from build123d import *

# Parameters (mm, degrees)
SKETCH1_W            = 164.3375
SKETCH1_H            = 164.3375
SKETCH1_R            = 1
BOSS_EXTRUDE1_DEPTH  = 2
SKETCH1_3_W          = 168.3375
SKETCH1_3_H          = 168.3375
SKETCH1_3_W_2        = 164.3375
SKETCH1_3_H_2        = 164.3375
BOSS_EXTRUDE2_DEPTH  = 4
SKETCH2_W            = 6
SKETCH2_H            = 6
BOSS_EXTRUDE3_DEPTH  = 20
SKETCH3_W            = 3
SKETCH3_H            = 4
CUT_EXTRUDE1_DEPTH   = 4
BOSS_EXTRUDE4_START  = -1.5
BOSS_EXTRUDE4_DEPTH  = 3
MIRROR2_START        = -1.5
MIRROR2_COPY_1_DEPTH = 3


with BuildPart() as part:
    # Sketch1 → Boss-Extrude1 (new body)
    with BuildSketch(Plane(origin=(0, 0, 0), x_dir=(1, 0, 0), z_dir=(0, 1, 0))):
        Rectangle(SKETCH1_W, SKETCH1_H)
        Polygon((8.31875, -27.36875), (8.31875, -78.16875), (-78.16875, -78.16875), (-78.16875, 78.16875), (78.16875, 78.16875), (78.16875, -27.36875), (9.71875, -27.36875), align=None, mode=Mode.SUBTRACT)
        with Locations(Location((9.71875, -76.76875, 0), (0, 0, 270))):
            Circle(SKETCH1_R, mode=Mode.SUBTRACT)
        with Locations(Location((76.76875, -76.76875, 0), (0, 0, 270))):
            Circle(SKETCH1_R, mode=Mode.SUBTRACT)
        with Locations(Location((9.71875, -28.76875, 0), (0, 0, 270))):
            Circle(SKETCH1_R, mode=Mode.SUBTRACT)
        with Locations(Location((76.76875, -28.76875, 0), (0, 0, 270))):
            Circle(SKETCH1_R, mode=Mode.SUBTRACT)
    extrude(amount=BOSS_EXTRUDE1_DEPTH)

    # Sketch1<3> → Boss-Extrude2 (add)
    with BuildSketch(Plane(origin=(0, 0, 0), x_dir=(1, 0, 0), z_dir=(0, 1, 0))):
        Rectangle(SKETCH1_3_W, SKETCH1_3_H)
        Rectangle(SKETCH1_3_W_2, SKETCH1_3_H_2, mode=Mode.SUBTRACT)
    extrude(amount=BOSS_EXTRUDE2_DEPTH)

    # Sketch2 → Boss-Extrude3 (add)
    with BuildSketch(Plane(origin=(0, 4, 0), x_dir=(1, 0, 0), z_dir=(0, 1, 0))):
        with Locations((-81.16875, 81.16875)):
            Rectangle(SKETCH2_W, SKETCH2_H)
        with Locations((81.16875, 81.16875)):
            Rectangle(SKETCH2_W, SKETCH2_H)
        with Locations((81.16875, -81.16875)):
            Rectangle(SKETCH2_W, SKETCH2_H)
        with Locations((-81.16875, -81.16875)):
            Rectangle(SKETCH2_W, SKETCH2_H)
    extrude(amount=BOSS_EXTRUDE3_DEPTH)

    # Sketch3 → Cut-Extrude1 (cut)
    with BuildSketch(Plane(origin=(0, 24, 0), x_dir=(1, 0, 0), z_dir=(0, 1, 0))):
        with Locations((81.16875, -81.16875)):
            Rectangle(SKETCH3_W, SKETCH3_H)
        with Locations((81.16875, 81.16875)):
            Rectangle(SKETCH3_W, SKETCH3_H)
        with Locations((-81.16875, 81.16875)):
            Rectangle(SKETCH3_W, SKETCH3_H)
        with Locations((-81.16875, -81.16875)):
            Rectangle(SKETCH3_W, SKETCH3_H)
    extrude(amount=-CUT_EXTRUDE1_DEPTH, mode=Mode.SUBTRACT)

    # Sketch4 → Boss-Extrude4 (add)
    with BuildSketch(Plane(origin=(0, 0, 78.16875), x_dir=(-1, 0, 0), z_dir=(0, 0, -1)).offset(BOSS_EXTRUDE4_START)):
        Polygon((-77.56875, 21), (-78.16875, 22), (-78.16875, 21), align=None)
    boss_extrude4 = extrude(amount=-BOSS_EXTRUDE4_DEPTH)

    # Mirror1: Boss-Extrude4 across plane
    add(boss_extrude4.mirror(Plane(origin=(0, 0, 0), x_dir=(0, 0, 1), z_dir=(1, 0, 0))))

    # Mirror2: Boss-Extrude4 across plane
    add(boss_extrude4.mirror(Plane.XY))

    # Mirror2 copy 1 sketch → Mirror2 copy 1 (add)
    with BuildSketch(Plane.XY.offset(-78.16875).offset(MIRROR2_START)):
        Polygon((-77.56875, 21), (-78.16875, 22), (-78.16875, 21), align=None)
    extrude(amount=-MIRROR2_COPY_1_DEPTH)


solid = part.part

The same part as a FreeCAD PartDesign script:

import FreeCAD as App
import Part
import Sketcher
from FreeCAD import Vector
Q = App.Units.Quantity

doc = App.newDocument("Part")
body = doc.addObject("PartDesign::Body", "Body")

# Sketch on XZ plane
sketch1 = body.newObject("Sketcher::SketchObject", "Sketch")
sketch1.AttachmentSupport = (doc.getObject("XZ_Plane"), [""])
sketch1.MapMode = "FlatFace"
sketch1.addGeometry([
    Part.LineSegment(Vector(-82.2, -82.2, 0), Vector(-82.2, 82.2, 0)),  # 0
    Part.LineSegment(Vector(-82.2, 82.2, 0), Vector(82.2, 82.2, 0)),  # 1
    Part.LineSegment(Vector(82.2, 82.2, 0), Vector(82.2, -82.2, 0)),  # 2
    Part.LineSegment(Vector(82.2, -82.2, 0), Vector(-82.2, -82.2, 0)),  # 3
    Part.Circle(Vector(9.7, 76.8, 0), Vector(0, 0, 1), 1),  # 4
    Part.Circle(Vector(76.8, 76.8, 0), Vector(0, 0, 1), 1),  # 5
    Part.Circle(Vector(9.7, 28.8, 0), Vector(0, 0, 1), 1),  # 6
    Part.Circle(Vector(76.8, 28.8, 0), Vector(0, 0, 1), 1),  # 7
    Part.LineSegment(Vector(78.2, 27.4, 0), Vector(8.3, 27.4, 0)),  # 8
    Part.LineSegment(Vector(8.3, 27.4, 0), Vector(8.3, 78.2, 0)),  # 9
    Part.LineSegment(Vector(8.3, 78.2, 0), Vector(-78.2, 78.2, 0)),  # 10
    Part.LineSegment(Vector(-78.2, 78.2, 0), Vector(-78.2, -78.2, 0)),  # 11
    Part.LineSegment(Vector(-78.2, -78.2, 0), Vector(78.2, -78.2, 0)),  # 12
    Part.LineSegment(Vector(78.2, -78.2, 0), Vector(78.2, 27.4, 0)),  # 13
], False)
sketch1.addConstraint([
    Sketcher.Constraint("Coincident", 0, 2, 1, 1),
    Sketcher.Constraint("Coincident", 1, 2, 2, 1),
    Sketcher.Constraint("Coincident", 2, 2, 3, 1),
    Sketcher.Constraint("Coincident", 3, 2, 0, 1),
    Sketcher.Constraint("Coincident", 8, 2, 9, 1),
    Sketcher.Constraint("Coincident", 9, 2, 10, 1),
    Sketcher.Constraint("Coincident", 10, 2, 11, 1),
    Sketcher.Constraint("Coincident", 11, 2, 12, 1),
    Sketcher.Constraint("Coincident", 12, 2, 13, 1),
    Sketcher.Constraint("Coincident", 13, 2, 8, 1),
    Sketcher.Constraint("Vertical", 0),
    Sketcher.Constraint("Horizontal", 1),
    Sketcher.Constraint("Vertical", 2),
    Sketcher.Constraint("Horizontal", 3),
    Sketcher.Constraint("Horizontal", 8),
    Sketcher.Constraint("Vertical", 9),
    Sketcher.Constraint("Horizontal", 10),
    Sketcher.Constraint("Vertical", 11),
    Sketcher.Constraint("Horizontal", 12),
    Sketcher.Constraint("Vertical", 13),
    Sketcher.Constraint("Equal", 4, 5),
    Sketcher.Constraint("Equal", 5, 6),
    Sketcher.Constraint("Equal", 6, 7),
    Sketcher.Constraint("Symmetric", 0, 2, 2, 2, -1, 1),
    Sketcher.Constraint("Symmetric", 10, 2, 12, 2, -1, 1),
    Sketcher.Constraint("Horizontal", 4, 3, 5, 3),
    Sketcher.Constraint("Horizontal", 6, 3, 7, 3),
    Sketcher.Constraint("Vertical", 4, 3, 6, 3),
    Sketcher.Constraint("Vertical", 5, 3, 7, 3),
    Sketcher.Constraint("Equal", 3, 0),
    Sketcher.Constraint("Equal", 12, 11),
    Sketcher.Constraint("Diameter", 4, Q("2 mm")),
    Sketcher.Constraint("DistanceY", 9, 1, 9, 2, Q("50.8 mm")),
    Sketcher.Constraint("DistanceY", 6, 3, 4, 3, Q("48 mm")),
    Sketcher.Constraint("DistanceY", 9, 2, 1, 2, Q("4 mm")),
    Sketcher.Constraint("DistanceX", 8, 2, 8, 1, Q("69.85 mm")),
    Sketcher.Constraint("DistanceY", 4, 3, 0, 2, Q("5.4 mm")),
    Sketcher.Constraint("DistanceX", 5, 3, 1, 2, Q("5.4 mm")),
    Sketcher.Constraint("DistanceX", 8, 2, 6, 3, Q("1.4 mm")),
    Sketcher.Constraint("DistanceX", 1, 1, 1, 2, Q("164.3375 mm")),
])
pad1 = body.newObject("PartDesign::Pad", "Pad")
pad1.Profile = sketch1
pad1.Length = 2
pad1.Reversed = True

# Sketch on XZ plane
sketch2 = body.newObject("Sketcher::SketchObject", "Sketch001")
sketch2.AttachmentSupport = (doc.getObject("XZ_Plane"), [""])
sketch2.MapMode = "FlatFace"
sketch2.addGeometry([
    Part.LineSegment(Vector(-84, -84, 0), Vector(-84, 84, 0)),  # 0
    Part.LineSegment(Vector(-84, 84, 0), Vector(84, 84, 0)),  # 1
    Part.LineSegment(Vector(84, 84, 0), Vector(84, -84, 0)),  # 2
    Part.LineSegment(Vector(84, -84, 0), Vector(-84, -84, 0)),  # 3
    Part.LineSegment(Vector(82, 82, 0), Vector(-82, 82, 0)),  # 4
    Part.LineSegment(Vector(-82, 82, 0), Vector(-82, -82, 0)),  # 5
    Part.LineSegment(Vector(-82, -82, 0), Vector(82, -82, 0)),  # 6
    Part.LineSegment(Vector(82, -82, 0), Vector(82, 82, 0)),  # 7
], False)
sketch2.addConstraint([
    Sketcher.Constraint("Coincident", 0, 2, 1, 1),
    Sketcher.Constraint("Coincident", 1, 2, 2, 1),
    Sketcher.Constraint("Coincident", 2, 2, 3, 1),
    Sketcher.Constraint("Coincident", 3, 2, 0, 1),
    Sketcher.Constraint("Coincident", 4, 2, 5, 1),
    Sketcher.Constraint("Coincident", 5, 2, 6, 1),
    Sketcher.Constraint("Coincident", 6, 2, 7, 1),
    Sketcher.Constraint("Coincident", 7, 2, 4, 1),
    Sketcher.Constraint("Vertical", 0),
    Sketcher.Constraint("Horizontal", 1),
    Sketcher.Constraint("Vertical", 2),
    Sketcher.Constraint("Horizontal", 3),
    Sketcher.Constraint("Horizontal", 4),
    Sketcher.Constraint("Vertical", 5),
    Sketcher.Constraint("Horizontal", 6),
    Sketcher.Constraint("Vertical", 7),
    Sketcher.Constraint("Symmetric", 0, 2, 2, 2, -1, 1),
    Sketcher.Constraint("Symmetric", 4, 2, 6, 2, -1, 1),
    Sketcher.Constraint("Equal", 3, 0),
    Sketcher.Constraint("Equal", 6, 5),
    Sketcher.Constraint("DistanceX", 0, 2, 4, 2, Q("2 mm")),
    Sketcher.Constraint("DistanceX", 1, 1, 1, 2, Q("168.3375 mm")),
])
pad2 = body.newObject("PartDesign::Pad", "Pad001")
pad2.Profile = sketch2
pad2.Length = 4
pad2.Reversed = True

# Sketch on XZ plane
sketch3 = body.newObject("Sketcher::SketchObject", "Sketch002")
sketch3.AttachmentSupport = (doc.getObject("XZ_Plane"), [""])
sketch3.MapMode = "FlatFace"
sketch3.AttachmentOffset = App.Placement(Vector(0, 0, -4), App.Rotation())
sketch3.addGeometry([
    Part.LineSegment(Vector(-84, -84, 0), Vector(-84, -78, 0)),  # 0
    Part.LineSegment(Vector(-84, -78, 0), Vector(-78, -78, 0)),  # 1
    Part.LineSegment(Vector(-78, -78, 0), Vector(-78, -84, 0)),  # 2
    Part.LineSegment(Vector(-78, -84, 0), Vector(-84, -84, 0)),  # 3
    Part.LineSegment(Vector(78, -84, 0), Vector(78, -78, 0)),  # 4
    Part.LineSegment(Vector(78, -78, 0), Vector(84, -78, 0)),  # 5
    Part.LineSegment(Vector(84, -78, 0), Vector(84, -84, 0)),  # 6
    Part.LineSegment(Vector(84, -84, 0), Vector(78, -84, 0)),  # 7
    Part.LineSegment(Vector(78, 78, 0), Vector(78, 84, 0)),  # 8
    Part.LineSegment(Vector(78, 84, 0), Vector(84, 84, 0)),  # 9
    Part.LineSegment(Vector(84, 84, 0), Vector(84, 78, 0)),  # 10
    Part.LineSegment(Vector(84, 78, 0), Vector(78, 78, 0)),  # 11
    Part.LineSegment(Vector(-84, 78, 0), Vector(-84, 84, 0)),  # 12
    Part.LineSegment(Vector(-84, 84, 0), Vector(-78, 84, 0)),  # 13
    Part.LineSegment(Vector(-78, 84, 0), Vector(-78, 78, 0)),  # 14
    Part.LineSegment(Vector(-78, 78, 0), Vector(-84, 78, 0)),  # 15
], False)
sketch3.addConstraint([
    Sketcher.Constraint("Coincident", 0, 2, 1, 1),
    Sketcher.Constraint("Coincident", 1, 2, 2, 1),
    Sketcher.Constraint("Coincident", 2, 2, 3, 1),
    Sketcher.Constraint("Coincident", 3, 2, 0, 1),
    Sketcher.Constraint("Coincident", 4, 2, 5, 1),
    Sketcher.Constraint("Coincident", 5, 2, 6, 1),
    Sketcher.Constraint("Coincident", 6, 2, 7, 1),
    Sketcher.Constraint("Coincident", 7, 2, 4, 1),
    Sketcher.Constraint("Coincident", 8, 2, 9, 1),
    Sketcher.Constraint("Coincident", 9, 2, 10, 1),
    Sketcher.Constraint("Coincident", 10, 2, 11, 1),
    Sketcher.Constraint("Coincident", 11, 2, 8, 1),
    Sketcher.Constraint("Coincident", 12, 2, 13, 1),
    Sketcher.Constraint("Coincident", 13, 2, 14, 1),
    Sketcher.Constraint("Coincident", 14, 2, 15, 1),
    Sketcher.Constraint("Coincident", 15, 2, 12, 1),
    Sketcher.Constraint("Vertical", 0),
    Sketcher.Constraint("Horizontal", 1),
    Sketcher.Constraint("Vertical", 2),
    Sketcher.Constraint("Horizontal", 3),
    Sketcher.Constraint("Vertical", 4),
    Sketcher.Constraint("Horizontal", 5),
    Sketcher.Constraint("Vertical", 6),
    Sketcher.Constraint("Horizontal", 7),
    Sketcher.Constraint("Vertical", 8),
    Sketcher.Constraint("Horizontal", 9),
    Sketcher.Constraint("Vertical", 10),
    Sketcher.Constraint("Horizontal", 11),
    Sketcher.Constraint("Vertical", 12),
    Sketcher.Constraint("Horizontal", 13),
    Sketcher.Constraint("Vertical", 14),
    Sketcher.Constraint("Horizontal", 15),
    Sketcher.Constraint("Symmetric", 2, 2, 8, 2, -1, 1),
    Sketcher.Constraint("Symmetric", 0, 2, 10, 2, -1, 1),
    Sketcher.Constraint("Symmetric", 6, 2, 12, 2, -1, 1),
    Sketcher.Constraint("Symmetric", 4, 2, 14, 2, -1, 1),
    Sketcher.Constraint("Symmetric", 1, 2, 4, 2, -2),
    Sketcher.Constraint("Symmetric", 3, 2, 6, 2, -2),
    Sketcher.Constraint("Equal", 15, 0),
    Sketcher.Constraint("DistanceX", 1, 1, 1, 2, Q("6 mm")),
    Sketcher.Constraint("DistanceX", 1, 2, 4, 2, Q("156.3375 mm")),
    Sketcher.Constraint("DistanceY", 4, 2, 8, 2, Q("162.3375 mm")),
])
pad3 = body.newObject("PartDesign::Pad", "Pad002")
pad3.Profile = sketch3
pad3.Length = 20
pad3.Reversed = True

# Sketch on XZ plane
sketch4 = body.newObject("Sketcher::SketchObject", "Sketch003")
sketch4.AttachmentSupport = (doc.getObject("XZ_Plane"), [""])
sketch4.MapMode = "FlatFace"
sketch4.AttachmentOffset = App.Placement(Vector(0, 0, -24), App.Rotation())
sketch4.addGeometry([
    Part.LineSegment(Vector(79.7, 79.2, 0), Vector(79.7, 83.2, 0)),  # 0
    Part.LineSegment(Vector(79.7, 83.2, 0), Vector(82.7, 83.2, 0)),  # 1
    Part.LineSegment(Vector(82.7, 83.2, 0), Vector(82.7, 79.2, 0)),  # 2
    Part.LineSegment(Vector(82.7, 79.2, 0), Vector(79.7, 79.2, 0)),  # 3
    Part.LineSegment(Vector(79.7, -83.2, 0), Vector(79.7, -79.2, 0)),  # 4
    Part.LineSegment(Vector(79.7, -79.2, 0), Vector(82.7, -79.2, 0)),  # 5
    Part.LineSegment(Vector(82.7, -79.2, 0), Vector(82.7, -83.2, 0)),  # 6
    Part.LineSegment(Vector(82.7, -83.2, 0), Vector(79.7, -83.2, 0)),  # 7
    Part.LineSegment(Vector(-82.7, -83.2, 0), Vector(-82.7, -79.2, 0)),  # 8
    Part.LineSegment(Vector(-82.7, -79.2, 0), Vector(-79.7, -79.2, 0)),  # 9
    Part.LineSegment(Vector(-79.7, -79.2, 0), Vector(-79.7, -83.2, 0)),  # 10
    Part.LineSegment(Vector(-79.7, -83.2, 0), Vector(-82.7, -83.2, 0)),  # 11
    Part.LineSegment(Vector(-82.7, 79.2, 0), Vector(-82.7, 83.2, 0)),  # 12
    Part.LineSegment(Vector(-82.7, 83.2, 0), Vector(-79.7, 83.2, 0)),  # 13
    Part.LineSegment(Vector(-79.7, 83.2, 0), Vector(-79.7, 79.2, 0)),  # 14
    Part.LineSegment(Vector(-79.7, 79.2, 0), Vector(-82.7, 79.2, 0)),  # 15
], False)
sketch4.addConstraint([
    Sketcher.Constraint("Coincident", 0, 2, 1, 1),
    Sketcher.Constraint("Coincident", 1, 2, 2, 1),
    Sketcher.Constraint("Coincident", 2, 2, 3, 1),
    Sketcher.Constraint("Coincident", 3, 2, 0, 1),
    Sketcher.Constraint("Coincident", 4, 2, 5, 1),
    Sketcher.Constraint("Coincident", 5, 2, 6, 1),
    Sketcher.Constraint("Coincident", 6, 2, 7, 1),
    Sketcher.Constraint("Coincident", 7, 2, 4, 1),
    Sketcher.Constraint("Coincident", 8, 2, 9, 1),
    Sketcher.Constraint("Coincident", 9, 2, 10, 1),
    Sketcher.Constraint("Coincident", 10, 2, 11, 1),
    Sketcher.Constraint("Coincident", 11, 2, 8, 1),
    Sketcher.Constraint("Coincident", 12, 2, 13, 1),
    Sketcher.Constraint("Coincident", 13, 2, 14, 1),
    Sketcher.Constraint("Coincident", 14, 2, 15, 1),
    Sketcher.Constraint("Coincident", 15, 2, 12, 1),
    Sketcher.Constraint("Vertical", 0),
    Sketcher.Constraint("Horizontal", 1),
    Sketcher.Constraint("Vertical", 2),
    Sketcher.Constraint("Horizontal", 3),
    Sketcher.Constraint("Vertical", 4),
    Sketcher.Constraint("Horizontal", 5),
    Sketcher.Constraint("Vertical", 6),
    Sketcher.Constraint("Horizontal", 7),
    Sketcher.Constraint("Vertical", 8),
    Sketcher.Constraint("Horizontal", 9),
    Sketcher.Constraint("Vertical", 10),
    Sketcher.Constraint("Horizontal", 11),
    Sketcher.Constraint("Vertical", 12),
    Sketcher.Constraint("Horizontal", 13),
    Sketcher.Constraint("Vertical", 14),
    Sketcher.Constraint("Horizontal", 15),
    Sketcher.Constraint("Symmetric", 2, 2, 8, 2, -1, 1),
    Sketcher.Constraint("Symmetric", 0, 2, 10, 2, -1, 1),
    Sketcher.Constraint("Symmetric", 6, 2, 12, 2, -1, 1),
    Sketcher.Constraint("Symmetric", 4, 2, 14, 2, -1, 1),
    Sketcher.Constraint("Symmetric", 5, 2, 8, 2, -2),
    Sketcher.Constraint("Symmetric", 7, 2, 10, 2, -2),
    Sketcher.Constraint("DistanceX", 1, 1, 1, 2, Q("3 mm")),
    Sketcher.Constraint("DistanceY", 0, 1, 0, 2, Q("4 mm")),
    Sketcher.Constraint("DistanceY", 4, 2, 3, 2, Q("158.3375 mm")),
    Sketcher.Constraint("DistanceX", 8, 2, 4, 2, Q("162.3375 mm")),
])
pocket1 = body.newObject("PartDesign::Pocket", "Pocket")
pocket1.Profile = sketch4
pocket1.Length = 4
pocket1.Reversed = True

# Sketch on XY plane
sketch5 = body.newObject("Sketcher::SketchObject", "Sketch004")
sketch5.AttachmentSupport = (doc.getObject("XY_Plane"), [""])
sketch5.MapMode = "FlatFace"
sketch5.AttachmentOffset = App.Placement(Vector(0, 0, 79.66875), App.Rotation())
sketch5.addGeometry([
    Part.LineSegment(Vector(77.6, 21, 0), Vector(78.2, 22, 0)),
    Part.LineSegment(Vector(78.2, 22, 0), Vector(78.2, 21, 0)),
    Part.LineSegment(Vector(78.2, 21, 0), Vector(77.6, 21, 0)),
], False)
sketch5.addConstraint([
    Sketcher.Constraint("Coincident", 0, 2, 1, 1),
    Sketcher.Constraint("Coincident", 1, 2, 2, 1),
    Sketcher.Constraint("Coincident", 2, 2, 0, 1),
    Sketcher.Constraint("Vertical", 1),
    Sketcher.Constraint("Horizontal", 2),
    Sketcher.Constraint("DistanceY", 1, 2, 1, 1, Q("1 mm")),
    Sketcher.Constraint("DistanceX", 2, 2, 2, 1, Q("0.6 mm")),
    Sketcher.Constraint("DistanceY", -1, 1, 0, 2, Q("22 mm")),
    Sketcher.Constraint("DistanceX", -1, 1, 0, 2, Q("78.16875 mm")),
])
pad4 = body.newObject("PartDesign::Pad", "Pad003")
pad4.Profile = sketch5
pad4.Length = 3
doc.recompute()

mirrored = body.newObject("PartDesign::Mirrored", "Mirrored")
mirrored.Originals = [pad4]
mirrored.MirrorPlane = (doc.getObject("YZ_Plane"), [""])
body.Tip = mirrored
doc.recompute()

mirrored2 = body.newObject("PartDesign::Mirrored", "Mirrored001")
mirrored2.Originals = [pad4]
mirrored2.MirrorPlane = (doc.getObject("XY_Plane"), [""])
body.Tip = mirrored2

# Sketch on XY plane
sketch6 = body.newObject("Sketcher::SketchObject", "Sketch005")
sketch6.AttachmentSupport = (doc.getObject("XY_Plane"), [""])
sketch6.MapMode = "FlatFace"
sketch6.AttachmentOffset = App.Placement(Vector(0, 0, -79.66875), App.Rotation())
sketch6.addGeometry([
    Part.LineSegment(Vector(-77.6, 21, 0), Vector(-78.2, 22, 0)),
    Part.LineSegment(Vector(-78.2, 22, 0), Vector(-78.2, 21, 0)),
    Part.LineSegment(Vector(-78.2, 21, 0), Vector(-77.6, 21, 0)),
], False)
sketch6.addConstraint([
    Sketcher.Constraint("Coincident", 0, 2, 1, 1),
    Sketcher.Constraint("Coincident", 1, 2, 2, 1),
    Sketcher.Constraint("Coincident", 2, 2, 0, 1),
    Sketcher.Constraint("Vertical", 1),
    Sketcher.Constraint("Horizontal", 2),
    Sketcher.Constraint("DistanceY", 1, 2, 1, 1, Q("1 mm")),
    Sketcher.Constraint("DistanceX", 2, 1, 2, 2, Q("0.6 mm")),
    Sketcher.Constraint("DistanceY", -1, 1, 0, 2, Q("22 mm")),
    Sketcher.Constraint("DistanceX", 0, 2, -1, 1, Q("78.16875 mm")),
])
pad5 = body.newObject("PartDesign::Pad", "Pad004")
pad5.Profile = sketch6
pad5.Length = 3
pad5.Reversed = True

doc.recompute()
